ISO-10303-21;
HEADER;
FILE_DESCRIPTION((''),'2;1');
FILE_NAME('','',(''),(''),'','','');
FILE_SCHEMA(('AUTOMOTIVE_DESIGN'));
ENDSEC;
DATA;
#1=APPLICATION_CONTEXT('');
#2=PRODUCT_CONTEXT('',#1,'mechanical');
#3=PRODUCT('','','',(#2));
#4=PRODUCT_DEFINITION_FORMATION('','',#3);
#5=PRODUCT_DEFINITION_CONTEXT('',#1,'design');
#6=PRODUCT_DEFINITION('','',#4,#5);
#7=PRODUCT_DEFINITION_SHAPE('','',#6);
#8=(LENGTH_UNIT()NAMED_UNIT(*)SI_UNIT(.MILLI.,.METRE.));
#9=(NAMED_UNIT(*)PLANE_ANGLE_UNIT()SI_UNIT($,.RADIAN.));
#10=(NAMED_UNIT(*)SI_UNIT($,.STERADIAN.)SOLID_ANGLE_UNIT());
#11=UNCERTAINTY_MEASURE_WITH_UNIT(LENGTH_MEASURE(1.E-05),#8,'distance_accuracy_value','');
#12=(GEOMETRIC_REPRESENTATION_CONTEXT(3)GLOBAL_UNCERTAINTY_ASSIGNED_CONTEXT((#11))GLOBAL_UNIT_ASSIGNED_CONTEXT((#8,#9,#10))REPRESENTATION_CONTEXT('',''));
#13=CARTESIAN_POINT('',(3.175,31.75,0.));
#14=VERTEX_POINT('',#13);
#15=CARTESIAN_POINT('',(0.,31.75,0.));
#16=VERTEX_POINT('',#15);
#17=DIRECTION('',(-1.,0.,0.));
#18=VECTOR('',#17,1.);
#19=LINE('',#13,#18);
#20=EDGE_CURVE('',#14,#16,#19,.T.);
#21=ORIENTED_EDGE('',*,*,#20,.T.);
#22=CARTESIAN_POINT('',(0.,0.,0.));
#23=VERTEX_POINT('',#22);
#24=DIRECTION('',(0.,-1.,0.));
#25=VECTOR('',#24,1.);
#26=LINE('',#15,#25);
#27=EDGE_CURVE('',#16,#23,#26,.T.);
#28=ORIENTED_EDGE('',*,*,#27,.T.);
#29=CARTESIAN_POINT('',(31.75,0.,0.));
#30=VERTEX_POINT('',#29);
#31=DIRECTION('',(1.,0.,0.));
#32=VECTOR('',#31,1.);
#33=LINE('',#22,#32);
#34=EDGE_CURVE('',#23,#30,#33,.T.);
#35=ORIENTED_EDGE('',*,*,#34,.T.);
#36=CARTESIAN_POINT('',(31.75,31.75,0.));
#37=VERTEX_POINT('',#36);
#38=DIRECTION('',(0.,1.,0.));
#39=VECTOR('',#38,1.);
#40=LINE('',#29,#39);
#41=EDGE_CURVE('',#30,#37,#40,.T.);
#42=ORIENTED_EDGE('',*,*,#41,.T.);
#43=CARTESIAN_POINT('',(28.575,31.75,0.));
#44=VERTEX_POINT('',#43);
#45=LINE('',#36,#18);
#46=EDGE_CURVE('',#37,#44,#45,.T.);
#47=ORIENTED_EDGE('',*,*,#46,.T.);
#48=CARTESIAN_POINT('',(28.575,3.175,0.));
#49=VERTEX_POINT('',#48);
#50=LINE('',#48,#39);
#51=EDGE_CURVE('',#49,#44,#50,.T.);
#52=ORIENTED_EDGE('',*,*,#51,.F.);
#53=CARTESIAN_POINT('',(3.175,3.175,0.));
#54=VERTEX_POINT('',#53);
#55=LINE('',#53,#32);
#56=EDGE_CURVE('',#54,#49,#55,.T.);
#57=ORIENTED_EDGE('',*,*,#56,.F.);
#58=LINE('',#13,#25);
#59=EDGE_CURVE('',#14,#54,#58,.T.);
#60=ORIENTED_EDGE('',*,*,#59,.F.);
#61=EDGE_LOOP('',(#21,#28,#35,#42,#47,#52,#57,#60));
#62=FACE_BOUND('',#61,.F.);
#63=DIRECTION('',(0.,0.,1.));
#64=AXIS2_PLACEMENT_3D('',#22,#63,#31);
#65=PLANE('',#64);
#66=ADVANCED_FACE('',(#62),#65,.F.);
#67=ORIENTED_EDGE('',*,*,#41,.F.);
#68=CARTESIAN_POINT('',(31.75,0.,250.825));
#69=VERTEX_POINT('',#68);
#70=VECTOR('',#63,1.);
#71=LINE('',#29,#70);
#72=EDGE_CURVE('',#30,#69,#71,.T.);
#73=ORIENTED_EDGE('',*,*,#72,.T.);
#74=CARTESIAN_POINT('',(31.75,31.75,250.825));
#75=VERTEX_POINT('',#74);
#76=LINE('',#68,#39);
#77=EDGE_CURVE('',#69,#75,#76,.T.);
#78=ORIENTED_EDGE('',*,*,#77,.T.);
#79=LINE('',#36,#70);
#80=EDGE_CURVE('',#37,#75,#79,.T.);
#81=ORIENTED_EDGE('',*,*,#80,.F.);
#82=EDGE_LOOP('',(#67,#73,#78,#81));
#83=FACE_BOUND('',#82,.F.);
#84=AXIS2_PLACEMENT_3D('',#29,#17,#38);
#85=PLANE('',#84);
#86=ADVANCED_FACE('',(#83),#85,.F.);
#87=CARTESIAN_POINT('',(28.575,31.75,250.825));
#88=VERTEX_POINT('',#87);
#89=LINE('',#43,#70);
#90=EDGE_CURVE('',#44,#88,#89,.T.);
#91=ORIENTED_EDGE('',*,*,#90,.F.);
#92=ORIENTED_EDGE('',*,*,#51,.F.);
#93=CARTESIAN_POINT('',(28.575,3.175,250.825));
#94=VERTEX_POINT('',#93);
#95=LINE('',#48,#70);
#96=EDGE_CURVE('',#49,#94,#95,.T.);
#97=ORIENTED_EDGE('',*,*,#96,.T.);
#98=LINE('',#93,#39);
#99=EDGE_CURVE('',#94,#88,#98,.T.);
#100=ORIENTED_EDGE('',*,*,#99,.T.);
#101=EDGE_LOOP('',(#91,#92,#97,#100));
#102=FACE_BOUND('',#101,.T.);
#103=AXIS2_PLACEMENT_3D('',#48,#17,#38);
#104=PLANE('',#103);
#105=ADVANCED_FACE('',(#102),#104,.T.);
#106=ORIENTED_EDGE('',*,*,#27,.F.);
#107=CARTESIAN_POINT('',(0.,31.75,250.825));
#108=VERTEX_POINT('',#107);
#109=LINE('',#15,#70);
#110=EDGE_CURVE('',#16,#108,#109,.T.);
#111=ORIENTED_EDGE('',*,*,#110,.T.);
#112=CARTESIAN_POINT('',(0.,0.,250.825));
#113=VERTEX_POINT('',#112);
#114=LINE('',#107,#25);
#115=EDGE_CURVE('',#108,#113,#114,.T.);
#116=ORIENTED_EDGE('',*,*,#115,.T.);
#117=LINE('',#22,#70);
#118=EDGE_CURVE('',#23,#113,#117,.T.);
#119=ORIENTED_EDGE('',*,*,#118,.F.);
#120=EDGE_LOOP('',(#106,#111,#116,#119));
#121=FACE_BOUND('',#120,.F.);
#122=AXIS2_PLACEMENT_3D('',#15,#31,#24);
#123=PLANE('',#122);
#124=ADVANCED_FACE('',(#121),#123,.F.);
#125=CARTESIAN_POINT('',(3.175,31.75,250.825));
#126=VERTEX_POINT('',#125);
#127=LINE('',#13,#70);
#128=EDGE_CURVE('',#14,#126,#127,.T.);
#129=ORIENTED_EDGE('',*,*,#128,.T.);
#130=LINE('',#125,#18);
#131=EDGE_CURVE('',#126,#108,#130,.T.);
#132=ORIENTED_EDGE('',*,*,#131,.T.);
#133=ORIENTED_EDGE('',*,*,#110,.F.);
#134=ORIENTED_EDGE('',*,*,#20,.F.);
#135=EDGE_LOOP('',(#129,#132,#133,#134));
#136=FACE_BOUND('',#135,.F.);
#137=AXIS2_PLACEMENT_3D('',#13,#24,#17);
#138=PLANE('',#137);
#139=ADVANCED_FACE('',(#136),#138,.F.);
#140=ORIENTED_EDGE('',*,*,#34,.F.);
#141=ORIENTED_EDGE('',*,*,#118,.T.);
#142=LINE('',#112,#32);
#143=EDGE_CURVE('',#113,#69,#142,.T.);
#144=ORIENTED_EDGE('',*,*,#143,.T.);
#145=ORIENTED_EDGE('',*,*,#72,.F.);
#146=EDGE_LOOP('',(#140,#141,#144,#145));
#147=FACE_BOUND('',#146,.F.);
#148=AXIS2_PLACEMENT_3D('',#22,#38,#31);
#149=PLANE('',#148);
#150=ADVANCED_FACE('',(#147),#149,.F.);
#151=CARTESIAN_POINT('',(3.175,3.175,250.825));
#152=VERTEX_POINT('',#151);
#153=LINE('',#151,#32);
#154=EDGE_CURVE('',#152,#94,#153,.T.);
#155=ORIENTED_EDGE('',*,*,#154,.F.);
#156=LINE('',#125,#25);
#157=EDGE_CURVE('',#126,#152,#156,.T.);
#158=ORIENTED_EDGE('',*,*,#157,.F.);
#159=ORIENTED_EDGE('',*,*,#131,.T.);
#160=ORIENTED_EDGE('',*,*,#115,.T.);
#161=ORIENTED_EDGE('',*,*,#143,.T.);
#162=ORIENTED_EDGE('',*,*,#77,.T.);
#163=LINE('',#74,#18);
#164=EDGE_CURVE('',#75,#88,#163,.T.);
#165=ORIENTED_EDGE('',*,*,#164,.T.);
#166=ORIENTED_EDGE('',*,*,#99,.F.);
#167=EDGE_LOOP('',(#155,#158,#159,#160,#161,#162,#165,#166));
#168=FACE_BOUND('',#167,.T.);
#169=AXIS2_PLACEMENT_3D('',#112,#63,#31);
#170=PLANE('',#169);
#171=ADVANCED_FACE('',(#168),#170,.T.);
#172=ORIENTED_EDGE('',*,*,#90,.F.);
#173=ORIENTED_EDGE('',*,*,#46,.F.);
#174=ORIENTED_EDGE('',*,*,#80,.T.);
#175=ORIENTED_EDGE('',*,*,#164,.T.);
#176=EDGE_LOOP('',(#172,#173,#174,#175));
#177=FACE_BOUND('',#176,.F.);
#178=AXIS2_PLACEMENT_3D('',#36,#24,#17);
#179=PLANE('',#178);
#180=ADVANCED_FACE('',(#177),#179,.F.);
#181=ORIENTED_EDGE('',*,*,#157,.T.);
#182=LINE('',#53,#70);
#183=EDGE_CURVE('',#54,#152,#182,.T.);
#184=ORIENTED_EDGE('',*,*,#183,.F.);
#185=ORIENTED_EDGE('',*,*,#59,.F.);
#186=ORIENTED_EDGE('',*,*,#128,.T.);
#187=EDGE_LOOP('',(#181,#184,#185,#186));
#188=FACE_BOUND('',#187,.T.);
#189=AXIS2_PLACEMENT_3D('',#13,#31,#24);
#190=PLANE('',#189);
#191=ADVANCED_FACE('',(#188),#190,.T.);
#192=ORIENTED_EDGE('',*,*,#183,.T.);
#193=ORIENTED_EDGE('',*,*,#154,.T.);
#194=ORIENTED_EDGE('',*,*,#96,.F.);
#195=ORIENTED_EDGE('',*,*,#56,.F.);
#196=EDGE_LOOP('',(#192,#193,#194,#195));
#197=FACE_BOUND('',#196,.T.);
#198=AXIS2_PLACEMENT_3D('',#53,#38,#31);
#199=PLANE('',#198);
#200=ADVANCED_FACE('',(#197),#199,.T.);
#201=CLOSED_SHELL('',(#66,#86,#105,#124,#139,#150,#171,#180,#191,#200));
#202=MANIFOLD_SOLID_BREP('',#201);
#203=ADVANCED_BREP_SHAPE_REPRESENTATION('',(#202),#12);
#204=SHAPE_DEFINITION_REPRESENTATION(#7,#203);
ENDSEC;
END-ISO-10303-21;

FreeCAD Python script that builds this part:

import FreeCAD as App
import Part
import Sketcher

V = App.Vector
Q = App.Units.Quantity


def add_polygon(sketch, points):
    """Adds a closed chain of lines whose ends are joined by coincident constraints."""
    first, n = sketch.GeometryCount, len(points)
    for a, b in zip(points, points[1:] + points[:1]):
        sketch.addGeometry(Part.LineSegment(App.Vector(*a, 0), App.Vector(*b, 0)), False)
    for i in range(n):
        sketch.addConstraint(Sketcher.Constraint("Coincident", first + i, 2, first + (i + 1) % n, 1))

doc = App.newDocument("Part")
params = doc.addObject("Spreadsheet::Sheet", "Params")
for row, (alias, value) in enumerate([
    ("sketch1_width", "1.25 in"),
    ("sketch1_width2", "0.125 in"),
    ("pad1_length", "9.875 in"),
], start=1):
    params.set(f"A{row}", alias)
    params.set(f"B{row}", "=" + value)
    params.setAlias(f"B{row}", alias)

body = doc.addObject("PartDesign::Body", "Body")

# Sketch on XY plane
sketch1 = body.newObject("Sketcher::SketchObject", "Sketch")
sketch1.AttachmentSupport = (doc.getObject("XY_Plane"), [""])
sketch1.MapMode = "FlatFace"
add_polygon(sketch1, [(0, 31.8), (0, 0), (31.8, 0), (31.8, 31.8), (28.6, 31.8), (28.6, 3.2), (3.2, 3.2), (3.2, 31.8)])  # lines 0-7
sketch1.addConstraint(Sketcher.Constraint("Vertical", 0))
sketch1.addConstraint(Sketcher.Constraint("Horizontal", 1))
sketch1.addConstraint(Sketcher.Constraint("Vertical", 2))
sketch1.addConstraint(Sketcher.Constraint("Horizontal", 3))
sketch1.addConstraint(Sketcher.Constraint("Vertical", 4))
sketch1.addConstraint(Sketcher.Constraint("Horizontal", 5))
sketch1.addConstraint(Sketcher.Constraint("Vertical", 6))
sketch1.addConstraint(Sketcher.Constraint("Horizontal", 7))
sketch1.addConstraint(Sketcher.Constraint("Coincident", 0, 2, -1, 1))
sketch1.addConstraint(Sketcher.Constraint("Horizontal", 3, 2, 6, 2))
sketch1.addConstraint(Sketcher.Constraint("Equal", 3, 7))
sketch1.addConstraint(Sketcher.Constraint("Equal", 1, 0))
sketch1.addConstraint(Sketcher.Constraint("DistanceX", 1, 1, 1, 2, Q("1.25 in")))
sketch1.addConstraint(Sketcher.Constraint("DistanceX", 3, 2, 3, 1, Q("0.125 in")))
sketch1.addConstraint(Sketcher.Constraint("DistanceY", -1, 1, 4, 2, Q("0.125 in")))
sketch1.setExpression("Constraints[20]", "Params.sketch1_width")
sketch1.setExpression("Constraints[21]", "Params.sketch1_width2")
pad1 = body.newObject("PartDesign::Pad", "Pad")
pad1.Profile = sketch1
pad1.setExpression("Length", "Params.pad1_length")

doc.recompute()
